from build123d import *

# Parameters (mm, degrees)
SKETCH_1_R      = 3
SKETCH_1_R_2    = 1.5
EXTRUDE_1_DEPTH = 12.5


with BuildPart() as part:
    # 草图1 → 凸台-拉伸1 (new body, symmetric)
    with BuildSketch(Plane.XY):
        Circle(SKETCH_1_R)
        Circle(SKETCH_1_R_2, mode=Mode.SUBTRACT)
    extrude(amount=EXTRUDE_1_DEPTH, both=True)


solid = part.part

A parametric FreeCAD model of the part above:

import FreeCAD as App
import Part
import Sketcher
Q = App.Units.Quantity

doc = App.newDocument("Part")
body = doc.addObject("PartDesign::Body", "Body")

sketch1 = body.newObject("Sketcher::SketchObject", "Sketch")
sketch1.AttachmentSupport = (doc.getObject("XY_Plane"), [""])
sketch1.MapMode = "FlatFace"
sketch1.addGeometry(Part.Circle(App.Vector(0, 0, 0), App.Vector(0, 0, 1), 3), False)
sketch1.addGeometry(Part.Circle(App.Vector(0, 0, 0), App.Vector(0, 0, 1), 1.5), False)
sketch1.addConstraint(Sketcher.Constraint("Coincident", 0, 3, -1, 1))
sketch1.addConstraint(Sketcher.Constraint("Coincident", 1, 3, -1, 1))
sketch1.addConstraint(Sketcher.Constraint("Diameter", 0, Q("6 mm")))
sketch1.addConstraint(Sketcher.Constraint("Diameter", 1, Q("3 mm")))
pad1 = body.newObject("PartDesign::Pad", "Pad")
pad1.Profile = sketch1
pad1.Length = 25
pad1.Midplane = True

doc.recompute()
